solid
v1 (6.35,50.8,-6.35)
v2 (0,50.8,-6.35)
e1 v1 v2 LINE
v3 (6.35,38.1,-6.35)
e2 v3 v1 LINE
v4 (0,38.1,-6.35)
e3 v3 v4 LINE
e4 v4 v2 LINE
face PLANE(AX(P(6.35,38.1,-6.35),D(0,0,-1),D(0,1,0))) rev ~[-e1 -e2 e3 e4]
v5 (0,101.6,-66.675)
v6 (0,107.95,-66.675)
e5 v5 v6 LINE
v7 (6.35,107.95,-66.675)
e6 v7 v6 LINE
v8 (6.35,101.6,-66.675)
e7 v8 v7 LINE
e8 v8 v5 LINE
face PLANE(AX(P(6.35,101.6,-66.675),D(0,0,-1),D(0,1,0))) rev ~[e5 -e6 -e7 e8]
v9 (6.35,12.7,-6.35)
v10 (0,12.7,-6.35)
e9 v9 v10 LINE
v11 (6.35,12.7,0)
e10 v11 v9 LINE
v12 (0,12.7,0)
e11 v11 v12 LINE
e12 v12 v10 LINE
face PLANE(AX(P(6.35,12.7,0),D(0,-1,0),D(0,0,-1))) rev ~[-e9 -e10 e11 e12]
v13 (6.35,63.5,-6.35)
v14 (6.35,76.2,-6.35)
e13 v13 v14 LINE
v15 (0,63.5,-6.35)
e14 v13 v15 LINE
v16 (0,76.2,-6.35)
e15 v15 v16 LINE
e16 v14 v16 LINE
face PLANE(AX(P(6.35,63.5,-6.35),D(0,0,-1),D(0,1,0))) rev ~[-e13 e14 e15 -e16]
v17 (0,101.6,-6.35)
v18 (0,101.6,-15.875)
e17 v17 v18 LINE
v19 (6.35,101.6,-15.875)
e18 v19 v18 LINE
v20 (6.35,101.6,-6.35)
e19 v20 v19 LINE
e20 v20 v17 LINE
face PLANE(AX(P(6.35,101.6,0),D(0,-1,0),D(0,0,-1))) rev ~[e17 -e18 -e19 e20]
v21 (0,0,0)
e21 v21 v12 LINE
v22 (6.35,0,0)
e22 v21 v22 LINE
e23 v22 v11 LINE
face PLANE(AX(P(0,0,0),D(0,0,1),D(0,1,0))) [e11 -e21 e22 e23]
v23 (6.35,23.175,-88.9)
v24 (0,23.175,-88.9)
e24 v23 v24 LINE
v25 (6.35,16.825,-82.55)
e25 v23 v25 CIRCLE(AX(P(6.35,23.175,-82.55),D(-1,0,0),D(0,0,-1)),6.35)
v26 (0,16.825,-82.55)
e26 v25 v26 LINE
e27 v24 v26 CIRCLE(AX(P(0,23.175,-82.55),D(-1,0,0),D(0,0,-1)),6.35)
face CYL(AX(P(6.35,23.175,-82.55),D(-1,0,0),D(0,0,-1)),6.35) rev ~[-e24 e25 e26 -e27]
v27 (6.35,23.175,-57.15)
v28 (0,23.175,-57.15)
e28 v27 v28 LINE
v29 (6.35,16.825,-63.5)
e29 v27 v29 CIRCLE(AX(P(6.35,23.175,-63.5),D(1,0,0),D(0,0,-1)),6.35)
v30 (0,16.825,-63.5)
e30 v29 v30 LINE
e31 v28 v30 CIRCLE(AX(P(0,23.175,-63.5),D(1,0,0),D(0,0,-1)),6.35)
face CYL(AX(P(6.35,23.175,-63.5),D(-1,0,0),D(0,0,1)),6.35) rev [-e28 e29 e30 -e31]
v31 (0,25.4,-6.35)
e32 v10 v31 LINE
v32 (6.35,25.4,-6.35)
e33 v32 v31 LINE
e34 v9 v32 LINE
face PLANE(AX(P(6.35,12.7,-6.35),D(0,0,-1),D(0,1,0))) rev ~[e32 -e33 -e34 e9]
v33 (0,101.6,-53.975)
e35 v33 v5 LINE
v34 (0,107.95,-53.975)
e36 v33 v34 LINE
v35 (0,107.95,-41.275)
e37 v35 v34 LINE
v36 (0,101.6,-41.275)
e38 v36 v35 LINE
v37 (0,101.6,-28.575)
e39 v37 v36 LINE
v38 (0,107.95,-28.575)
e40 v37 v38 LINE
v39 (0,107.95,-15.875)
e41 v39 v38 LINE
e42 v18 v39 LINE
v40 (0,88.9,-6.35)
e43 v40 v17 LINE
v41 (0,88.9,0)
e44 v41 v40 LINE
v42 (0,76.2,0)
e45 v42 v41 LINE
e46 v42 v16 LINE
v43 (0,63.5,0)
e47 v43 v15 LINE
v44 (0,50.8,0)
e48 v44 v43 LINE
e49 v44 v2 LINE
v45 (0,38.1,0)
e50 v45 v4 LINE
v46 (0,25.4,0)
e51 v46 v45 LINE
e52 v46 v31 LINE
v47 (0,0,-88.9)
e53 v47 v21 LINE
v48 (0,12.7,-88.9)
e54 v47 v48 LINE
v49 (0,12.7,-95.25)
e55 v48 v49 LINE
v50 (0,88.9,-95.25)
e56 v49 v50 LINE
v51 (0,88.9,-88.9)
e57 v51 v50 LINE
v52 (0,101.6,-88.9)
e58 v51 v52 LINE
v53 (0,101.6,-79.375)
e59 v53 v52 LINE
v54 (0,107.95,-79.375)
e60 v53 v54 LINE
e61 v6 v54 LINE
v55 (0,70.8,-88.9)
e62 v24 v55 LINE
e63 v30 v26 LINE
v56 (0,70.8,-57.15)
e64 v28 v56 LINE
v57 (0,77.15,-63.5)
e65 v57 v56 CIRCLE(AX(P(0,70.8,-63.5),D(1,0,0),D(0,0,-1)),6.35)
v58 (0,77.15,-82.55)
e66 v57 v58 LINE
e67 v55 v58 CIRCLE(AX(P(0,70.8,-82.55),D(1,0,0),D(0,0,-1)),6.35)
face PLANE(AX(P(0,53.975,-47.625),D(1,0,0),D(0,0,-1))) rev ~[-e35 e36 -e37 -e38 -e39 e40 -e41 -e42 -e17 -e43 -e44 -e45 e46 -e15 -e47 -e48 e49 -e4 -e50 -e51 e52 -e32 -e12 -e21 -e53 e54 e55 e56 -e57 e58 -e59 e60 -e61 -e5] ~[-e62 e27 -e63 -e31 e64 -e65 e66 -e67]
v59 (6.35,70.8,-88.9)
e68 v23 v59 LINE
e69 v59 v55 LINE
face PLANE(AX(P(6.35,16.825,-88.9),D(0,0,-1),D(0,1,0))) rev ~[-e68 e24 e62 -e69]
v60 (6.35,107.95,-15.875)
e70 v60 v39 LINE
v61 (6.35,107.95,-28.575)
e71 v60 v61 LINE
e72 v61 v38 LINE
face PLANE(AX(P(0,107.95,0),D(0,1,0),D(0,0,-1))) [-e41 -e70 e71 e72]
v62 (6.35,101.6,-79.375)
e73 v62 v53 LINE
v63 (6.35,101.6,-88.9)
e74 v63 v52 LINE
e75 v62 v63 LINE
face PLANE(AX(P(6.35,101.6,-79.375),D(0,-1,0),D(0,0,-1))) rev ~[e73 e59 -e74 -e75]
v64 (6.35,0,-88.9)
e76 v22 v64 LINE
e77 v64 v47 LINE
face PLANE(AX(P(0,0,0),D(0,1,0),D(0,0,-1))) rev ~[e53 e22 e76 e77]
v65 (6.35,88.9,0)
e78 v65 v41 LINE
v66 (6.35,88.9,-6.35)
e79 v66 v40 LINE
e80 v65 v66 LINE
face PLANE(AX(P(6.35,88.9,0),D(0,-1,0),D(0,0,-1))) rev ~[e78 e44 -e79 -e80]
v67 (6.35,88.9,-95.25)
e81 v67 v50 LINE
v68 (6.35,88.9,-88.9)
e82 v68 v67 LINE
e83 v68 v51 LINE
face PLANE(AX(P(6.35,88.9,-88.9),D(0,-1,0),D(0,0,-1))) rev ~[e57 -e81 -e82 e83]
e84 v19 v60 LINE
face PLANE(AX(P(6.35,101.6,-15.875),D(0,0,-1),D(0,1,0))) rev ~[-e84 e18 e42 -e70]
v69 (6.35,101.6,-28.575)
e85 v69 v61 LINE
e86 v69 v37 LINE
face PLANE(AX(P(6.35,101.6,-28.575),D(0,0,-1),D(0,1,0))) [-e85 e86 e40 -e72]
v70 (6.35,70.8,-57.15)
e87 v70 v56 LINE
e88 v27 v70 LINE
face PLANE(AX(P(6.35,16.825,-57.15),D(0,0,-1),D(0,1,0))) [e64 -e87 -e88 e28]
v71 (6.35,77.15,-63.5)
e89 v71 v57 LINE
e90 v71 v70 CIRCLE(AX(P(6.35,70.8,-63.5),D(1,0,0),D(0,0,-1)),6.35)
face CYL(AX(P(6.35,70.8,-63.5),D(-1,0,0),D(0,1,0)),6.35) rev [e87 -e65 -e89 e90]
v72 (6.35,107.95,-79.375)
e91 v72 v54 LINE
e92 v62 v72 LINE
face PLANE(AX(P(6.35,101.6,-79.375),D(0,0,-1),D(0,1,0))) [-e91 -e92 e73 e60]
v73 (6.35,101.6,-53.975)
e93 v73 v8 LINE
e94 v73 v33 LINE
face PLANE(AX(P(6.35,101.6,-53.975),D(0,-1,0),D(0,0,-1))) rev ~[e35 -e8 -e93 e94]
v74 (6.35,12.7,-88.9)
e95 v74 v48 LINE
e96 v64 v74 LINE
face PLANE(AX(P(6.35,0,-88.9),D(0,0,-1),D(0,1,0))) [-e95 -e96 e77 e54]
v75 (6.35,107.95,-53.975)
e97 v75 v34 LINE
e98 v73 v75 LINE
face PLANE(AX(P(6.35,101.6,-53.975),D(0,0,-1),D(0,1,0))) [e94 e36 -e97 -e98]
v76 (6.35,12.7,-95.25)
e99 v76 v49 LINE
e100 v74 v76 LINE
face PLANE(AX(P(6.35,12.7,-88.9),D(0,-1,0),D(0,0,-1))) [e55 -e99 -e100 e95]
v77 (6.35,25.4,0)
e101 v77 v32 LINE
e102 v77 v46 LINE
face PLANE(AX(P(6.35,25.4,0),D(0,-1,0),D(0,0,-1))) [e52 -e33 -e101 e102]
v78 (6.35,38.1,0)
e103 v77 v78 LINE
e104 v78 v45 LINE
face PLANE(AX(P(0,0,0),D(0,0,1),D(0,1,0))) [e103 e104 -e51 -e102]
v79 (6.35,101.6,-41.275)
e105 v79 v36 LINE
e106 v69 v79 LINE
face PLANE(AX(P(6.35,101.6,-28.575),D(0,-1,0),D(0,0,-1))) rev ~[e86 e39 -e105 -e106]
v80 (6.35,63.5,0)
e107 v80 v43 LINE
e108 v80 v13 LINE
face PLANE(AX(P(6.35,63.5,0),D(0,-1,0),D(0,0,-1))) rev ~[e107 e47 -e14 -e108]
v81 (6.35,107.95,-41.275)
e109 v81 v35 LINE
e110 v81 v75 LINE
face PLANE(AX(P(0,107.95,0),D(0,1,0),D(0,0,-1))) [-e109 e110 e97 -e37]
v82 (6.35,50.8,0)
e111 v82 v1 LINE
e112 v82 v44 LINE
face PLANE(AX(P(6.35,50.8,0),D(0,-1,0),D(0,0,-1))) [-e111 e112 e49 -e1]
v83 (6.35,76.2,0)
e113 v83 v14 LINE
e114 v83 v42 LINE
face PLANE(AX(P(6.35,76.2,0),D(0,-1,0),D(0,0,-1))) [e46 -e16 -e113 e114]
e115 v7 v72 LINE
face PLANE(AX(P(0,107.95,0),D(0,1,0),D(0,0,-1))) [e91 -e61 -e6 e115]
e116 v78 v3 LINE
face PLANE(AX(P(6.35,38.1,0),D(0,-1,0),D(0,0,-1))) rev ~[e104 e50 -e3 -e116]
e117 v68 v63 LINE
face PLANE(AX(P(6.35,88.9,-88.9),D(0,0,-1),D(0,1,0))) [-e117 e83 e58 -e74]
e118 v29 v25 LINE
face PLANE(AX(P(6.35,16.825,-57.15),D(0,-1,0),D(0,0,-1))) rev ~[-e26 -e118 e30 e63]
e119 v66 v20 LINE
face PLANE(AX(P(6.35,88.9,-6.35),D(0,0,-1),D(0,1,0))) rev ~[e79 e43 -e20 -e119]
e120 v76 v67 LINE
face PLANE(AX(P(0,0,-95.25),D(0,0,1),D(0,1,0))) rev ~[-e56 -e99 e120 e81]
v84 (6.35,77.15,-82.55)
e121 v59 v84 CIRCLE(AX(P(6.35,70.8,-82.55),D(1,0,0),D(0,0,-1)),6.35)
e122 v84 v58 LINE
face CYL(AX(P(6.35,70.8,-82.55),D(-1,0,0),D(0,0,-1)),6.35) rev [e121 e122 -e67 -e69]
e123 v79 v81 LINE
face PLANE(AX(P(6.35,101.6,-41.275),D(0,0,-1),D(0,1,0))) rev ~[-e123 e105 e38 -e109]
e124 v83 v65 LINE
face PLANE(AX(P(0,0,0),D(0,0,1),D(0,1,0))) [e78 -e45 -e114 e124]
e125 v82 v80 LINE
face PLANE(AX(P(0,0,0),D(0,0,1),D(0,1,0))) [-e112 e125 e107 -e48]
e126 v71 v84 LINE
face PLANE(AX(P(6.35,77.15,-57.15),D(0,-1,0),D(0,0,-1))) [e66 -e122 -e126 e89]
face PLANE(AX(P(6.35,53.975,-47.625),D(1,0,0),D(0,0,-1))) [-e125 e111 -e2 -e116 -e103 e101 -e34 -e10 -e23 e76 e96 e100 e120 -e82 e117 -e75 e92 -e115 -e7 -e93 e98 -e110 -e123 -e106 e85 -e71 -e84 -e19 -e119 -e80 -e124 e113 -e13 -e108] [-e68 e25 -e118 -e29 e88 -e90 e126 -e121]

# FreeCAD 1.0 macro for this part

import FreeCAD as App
import Part
import Sketcher
Q = App.Units.Quantity


def edges_at(feature, points):
    """Names of the edges that pass closest to the given points."""
    edges = feature.Shape.Edges
    near = lambda p: min(range(len(edges)), key=lambda i: edges[i].distToShape(Part.Vertex(*p))[0])
    return sorted({f"Edge{near(p) + 1}" for p in points})


def add_polygon(sketch, points):
    """Adds a closed chain of lines whose ends are joined by coincident constraints."""
    first, n = sketch.GeometryCount, len(points)
    for a, b in zip(points, points[1:] + points[:1]):
        sketch.addGeometry(Part.LineSegment(App.Vector(*a, 0), App.Vector(*b, 0)), False)
    for i in range(n):
        sketch.addConstraint(Sketcher.Constraint("Coincident", first + i, 2, first + (i + 1) % n, 1))

doc = App.newDocument("Part")
body = doc.addObject("PartDesign::Body", "Body")

# Sketch on YZ plane
sketch1 = body.newObject("Sketcher::SketchObject", "Sketch")
sketch1.AttachmentSupport = (doc.getObject("YZ_Plane"), [""])
sketch1.MapMode = "FlatFace"
add_polygon(sketch1, [(107.95, 0), (0, 0), (0, -95.25), (107.95, -95.25)])  # lines 0-3
sketch1.addConstraint(Sketcher.Constraint("Horizontal", 0))
sketch1.addConstraint(Sketcher.Constraint("Vertical", 1))
sketch1.addConstraint(Sketcher.Constraint("Horizontal", 2))
sketch1.addConstraint(Sketcher.Constraint("Vertical", 3))
sketch1.addConstraint(Sketcher.Constraint("Coincident", 0, 2, -1, 1))
sketch1.addConstraint(Sketcher.Constraint("DistanceX", 0, 2, 0, 1, Q("4.25 in")))
sketch1.addConstraint(Sketcher.Constraint("DistanceY", 1, 2, 1, 1, Q("3.75 in")))
pad1 = body.newObject("PartDesign::Pad", "Pad")
pad1.Profile = sketch1
pad1.Length = Q("0.25 in")

# Sketch on YZ plane
sketch2 = body.newObject("Sketcher::SketchObject", "Sketch001")
sketch2.AttachmentSupport = (doc.getObject("YZ_Plane"), [""])
sketch2.MapMode = "FlatFace"
sketch2.AttachmentOffset = App.Placement(App.Vector(0, 0, 0.25 * 25.4), App.Rotation())
add_polygon(sketch2, [(77.15, -57.15), (16.825, -57.15), (16.825, -88.9), (77.15, -88.9)])  # lines 0-3
sketch2.addConstraint(Sketcher.Constraint("Horizontal", 0))
sketch2.addConstraint(Sketcher.Constraint("Vertical", 1))
sketch2.addConstraint(Sketcher.Constraint("Horizontal", 2))
sketch2.addConstraint(Sketcher.Constraint("Vertical", 3))
sketch2.addConstraint(Sketcher.Constraint("DistanceY", 1, 2, 1, 1, Q("1.25 in")))
sketch2.addConstraint(Sketcher.Constraint("DistanceY", 1, 2, -1, 1, Q("3.5 in")))
sketch2.addConstraint(Sketcher.Constraint("DistanceX", 0, 2, 0, 1, Q("2.375 in")))
sketch2.addConstraint(Sketcher.Constraint("DistanceX", -1, 1, 0, 2, Q("16.825 mm")))
pocket1 = body.newObject("PartDesign::Pocket", "Pocket")
pocket1.Profile = sketch2
pocket1.Type = "ThroughAll"

# Sketch on YZ plane
sketch3 = body.newObject("Sketcher::SketchObject", "Sketch002")
sketch3.AttachmentSupport = (doc.getObject("YZ_Plane"), [""])
sketch3.MapMode = "FlatFace"
sketch3.AttachmentOffset = App.Placement(App.Vector(0, 0, 0.25 * 25.4), App.Rotation())
add_polygon(sketch3, [(107.95, 0), (101.6, 0), (101.6, -15.875), (107.95, -15.875)])  # lines 0-3
add_polygon(sketch3, [(107.95, -28.575), (101.6, -28.575), (101.6, -41.275), (107.95, -41.275)])  # lines 4-7
add_polygon(sketch3, [(107.95, -53.975), (101.6, -53.975), (101.6, -66.675), (107.95, -66.675)])  # lines 8-11
add_polygon(sketch3, [(107.95, -79.375), (101.6, -79.375), (101.6, -95.25), (107.95, -95.25)])  # lines 12-15
sketch3.addConstraint(Sketcher.Constraint("Horizontal", 0))
sketch3.addConstraint(Sketcher.Constraint("Vertical", 1))
sketch3.addConstraint(Sketcher.Constraint("Horizontal", 2))
sketch3.addConstraint(Sketcher.Constraint("Vertical", 3))
sketch3.addConstraint(Sketcher.Constraint("Horizontal", 4))
sketch3.addConstraint(Sketcher.Constraint("Vertical", 5))
sketch3.addConstraint(Sketcher.Constraint("Horizontal", 6))
sketch3.addConstraint(Sketcher.Constraint("Vertical", 7))
sketch3.addConstraint(Sketcher.Constraint("Horizontal", 8))
sketch3.addConstraint(Sketcher.Constraint("Vertical", 9))
sketch3.addConstraint(Sketcher.Constraint("Horizontal", 10))
sketch3.addConstraint(Sketcher.Constraint("Vertical", 11))
sketch3.addConstraint(Sketcher.Constraint("Horizontal", 12))
sketch3.addConstraint(Sketcher.Constraint("Vertical", 13))
sketch3.addConstraint(Sketcher.Constraint("Horizontal", 14))
sketch3.addConstraint(Sketcher.Constraint("Vertical", 15))
sketch3.addConstraint(Sketcher.Constraint("PointOnObject", 0, 2, -1))
sketch3.addConstraint(Sketcher.Constraint("Vertical", 1, 2, 4, 2))
sketch3.addConstraint(Sketcher.Constraint("Vertical", 3, 2, 6, 2))
sketch3.addConstraint(Sketcher.Constraint("Vertical", 5, 2, 8, 2))
sketch3.addConstraint(Sketcher.Constraint("Vertical", 7, 2, 10, 2))
sketch3.addConstraint(Sketcher.Constraint("Vertical", 9, 2, 12, 2))
sketch3.addConstraint(Sketcher.Constraint("Vertical", 11, 2, 14, 2))
sketch3.addConstraint(Sketcher.Constraint("Equal", 7, 9))
sketch3.addConstraint(Sketcher.Constraint("Equal", 3, 13))
sketch3.addConstraint(Sketcher.Constraint("DistanceY", 5, 2, 5, 1, Q("0.5 in")))
sketch3.addConstraint(Sketcher.Constraint("DistanceX", -1, 1, 0, 2, Q("4 in")))
sketch3.addConstraint(Sketcher.Constraint("DistanceY", 5, 2, 1, 2, Q("1 in")))
sketch3.addConstraint(Sketcher.Constraint("DistanceY", 8, 2, 4, 2, Q("1 in")))
sketch3.addConstraint(Sketcher.Constraint("DistanceY", 12, 2, 8, 2, Q("1 in")))
sketch3.addConstraint(Sketcher.Constraint("DistanceX", 0, 2, 0, 1, Q("0.25 in")))
sketch3.addConstraint(Sketcher.Constraint("DistanceY", 1, 2, 1, 1, Q("0.625 in")))
pocket2 = body.newObject("PartDesign::Pocket", "Pocket001")
pocket2.Profile = sketch3
pocket2.Type = "ThroughAll"

# Sketch on YZ plane
sketch4 = body.newObject("Sketcher::SketchObject", "Sketch003")
sketch4.AttachmentSupport = (doc.getObject("YZ_Plane"), [""])
sketch4.MapMode = "FlatFace"
sketch4.AttachmentOffset = App.Placement(App.Vector(0, 0, 0.25 * 25.4), App.Rotation())
add_polygon(sketch4, [(101.6, -88.9), (88.9, -88.9), (88.9, -95.25), (101.6, -95.25)])  # lines 0-3
add_polygon(sketch4, [(12.7, -88.9), (0, -88.9), (0, -95.25), (12.7, -95.25)])  # lines 4-7
sketch4.addConstraint(Sketcher.Constraint("Horizontal", 0))
sketch4.addConstraint(Sketcher.Constraint("Vertical", 1))
sketch4.addConstraint(Sketcher.Constraint("Horizontal", 2))
sketch4.addConstraint(Sketcher.Constraint("Vertical", 3))
sketch4.addConstraint(Sketcher.Constraint("Horizontal", 4))
sketch4.addConstraint(Sketcher.Constraint("Vertical", 5))
sketch4.addConstraint(Sketcher.Constraint("Horizontal", 6))
sketch4.addConstraint(Sketcher.Constraint("Vertical", 7))
sketch4.addConstraint(Sketcher.Constraint("PointOnObject", 4, 2, -2))
sketch4.addConstraint(Sketcher.Constraint("Horizontal", 3, 2, 4, 2))
sketch4.addConstraint(Sketcher.Constraint("Horizontal", 2, 2, 5, 2))
sketch4.addConstraint(Sketcher.Constraint("Equal", 2, 4))
sketch4.addConstraint(Sketcher.Constraint("DistanceX", 0, 2, 0, 1, Q("0.5 in")))
sketch4.addConstraint(Sketcher.Constraint("DistanceX", -1, 1, 2, 2, Q("4 in")))
sketch4.addConstraint(Sketcher.Constraint("DistanceY", 1, 2, 1, 1, Q("0.25 in")))
sketch4.addConstraint(Sketcher.Constraint("DistanceY", 0, 2, -1, 1, Q("3.5 in")))
pocket3 = body.newObject("PartDesign::Pocket", "Pocket002")
pocket3.Profile = sketch4
pocket3.Type = "ThroughAll"

# Sketch on YZ plane
sketch5 = body.newObject("Sketcher::SketchObject", "Sketch004")
sketch5.AttachmentSupport = (doc.getObject("YZ_Plane"), [""])
sketch5.MapMode = "FlatFace"
sketch5.AttachmentOffset = App.Placement(App.Vector(0, 0, 0.25 * 25.4), App.Rotation())
add_polygon(sketch5, [(101.6, 0), (88.9, 0), (88.9, -6.35), (101.6, -6.35)])  # lines 0-3
sketch5.addConstraint(Sketcher.Constraint("Horizontal", 0))
sketch5.addConstraint(Sketcher.Constraint("Vertical", 1))
sketch5.addConstraint(Sketcher.Constraint("Horizontal", 2))
sketch5.addConstraint(Sketcher.Constraint("Vertical", 3))
sketch5.addConstraint(Sketcher.Constraint("PointOnObject", 0, 2, -1))
sketch5.addConstraint(Sketcher.Constraint("DistanceX", 0, 2, 0, 1, Q("0.5 in")))
sketch5.addConstraint(Sketcher.Constraint("DistanceX", -1, 1, 2, 2, Q("4 in")))
sketch5.addConstraint(Sketcher.Constraint("DistanceY", 1, 2, 1, 1, Q("0.25 in")))
pocket4 = body.newObject("PartDesign::Pocket", "Pocket003")
pocket4.Profile = sketch5
pocket4.Type = "ThroughAll"
doc.recompute()

linearpattern = body.newObject("PartDesign::LinearPattern", "LinearPattern")
linearpattern.Originals = [pocket4]
linearpattern.Direction = (doc.getObject("Y_Axis"), [""])
linearpattern.Mode = "offset"
linearpattern.Offset = Q("1 in")
linearpattern.Occurrences = 5
linearpattern.Reversed = True
body.Tip = linearpattern
doc.recompute()

fillet = body.newObject("PartDesign::Fillet", "Fillet")
fillet.Base = (linearpattern, edges_at(linearpattern, [
    (3.175, 16.825, -57.15),
    (3.175, 77.15, -57.15),
    (3.175, 77.15, -88.9),
    (3.175, 16.825, -88.9),
]))
fillet.Radius = Q("0.25 in")

doc.recompute()
